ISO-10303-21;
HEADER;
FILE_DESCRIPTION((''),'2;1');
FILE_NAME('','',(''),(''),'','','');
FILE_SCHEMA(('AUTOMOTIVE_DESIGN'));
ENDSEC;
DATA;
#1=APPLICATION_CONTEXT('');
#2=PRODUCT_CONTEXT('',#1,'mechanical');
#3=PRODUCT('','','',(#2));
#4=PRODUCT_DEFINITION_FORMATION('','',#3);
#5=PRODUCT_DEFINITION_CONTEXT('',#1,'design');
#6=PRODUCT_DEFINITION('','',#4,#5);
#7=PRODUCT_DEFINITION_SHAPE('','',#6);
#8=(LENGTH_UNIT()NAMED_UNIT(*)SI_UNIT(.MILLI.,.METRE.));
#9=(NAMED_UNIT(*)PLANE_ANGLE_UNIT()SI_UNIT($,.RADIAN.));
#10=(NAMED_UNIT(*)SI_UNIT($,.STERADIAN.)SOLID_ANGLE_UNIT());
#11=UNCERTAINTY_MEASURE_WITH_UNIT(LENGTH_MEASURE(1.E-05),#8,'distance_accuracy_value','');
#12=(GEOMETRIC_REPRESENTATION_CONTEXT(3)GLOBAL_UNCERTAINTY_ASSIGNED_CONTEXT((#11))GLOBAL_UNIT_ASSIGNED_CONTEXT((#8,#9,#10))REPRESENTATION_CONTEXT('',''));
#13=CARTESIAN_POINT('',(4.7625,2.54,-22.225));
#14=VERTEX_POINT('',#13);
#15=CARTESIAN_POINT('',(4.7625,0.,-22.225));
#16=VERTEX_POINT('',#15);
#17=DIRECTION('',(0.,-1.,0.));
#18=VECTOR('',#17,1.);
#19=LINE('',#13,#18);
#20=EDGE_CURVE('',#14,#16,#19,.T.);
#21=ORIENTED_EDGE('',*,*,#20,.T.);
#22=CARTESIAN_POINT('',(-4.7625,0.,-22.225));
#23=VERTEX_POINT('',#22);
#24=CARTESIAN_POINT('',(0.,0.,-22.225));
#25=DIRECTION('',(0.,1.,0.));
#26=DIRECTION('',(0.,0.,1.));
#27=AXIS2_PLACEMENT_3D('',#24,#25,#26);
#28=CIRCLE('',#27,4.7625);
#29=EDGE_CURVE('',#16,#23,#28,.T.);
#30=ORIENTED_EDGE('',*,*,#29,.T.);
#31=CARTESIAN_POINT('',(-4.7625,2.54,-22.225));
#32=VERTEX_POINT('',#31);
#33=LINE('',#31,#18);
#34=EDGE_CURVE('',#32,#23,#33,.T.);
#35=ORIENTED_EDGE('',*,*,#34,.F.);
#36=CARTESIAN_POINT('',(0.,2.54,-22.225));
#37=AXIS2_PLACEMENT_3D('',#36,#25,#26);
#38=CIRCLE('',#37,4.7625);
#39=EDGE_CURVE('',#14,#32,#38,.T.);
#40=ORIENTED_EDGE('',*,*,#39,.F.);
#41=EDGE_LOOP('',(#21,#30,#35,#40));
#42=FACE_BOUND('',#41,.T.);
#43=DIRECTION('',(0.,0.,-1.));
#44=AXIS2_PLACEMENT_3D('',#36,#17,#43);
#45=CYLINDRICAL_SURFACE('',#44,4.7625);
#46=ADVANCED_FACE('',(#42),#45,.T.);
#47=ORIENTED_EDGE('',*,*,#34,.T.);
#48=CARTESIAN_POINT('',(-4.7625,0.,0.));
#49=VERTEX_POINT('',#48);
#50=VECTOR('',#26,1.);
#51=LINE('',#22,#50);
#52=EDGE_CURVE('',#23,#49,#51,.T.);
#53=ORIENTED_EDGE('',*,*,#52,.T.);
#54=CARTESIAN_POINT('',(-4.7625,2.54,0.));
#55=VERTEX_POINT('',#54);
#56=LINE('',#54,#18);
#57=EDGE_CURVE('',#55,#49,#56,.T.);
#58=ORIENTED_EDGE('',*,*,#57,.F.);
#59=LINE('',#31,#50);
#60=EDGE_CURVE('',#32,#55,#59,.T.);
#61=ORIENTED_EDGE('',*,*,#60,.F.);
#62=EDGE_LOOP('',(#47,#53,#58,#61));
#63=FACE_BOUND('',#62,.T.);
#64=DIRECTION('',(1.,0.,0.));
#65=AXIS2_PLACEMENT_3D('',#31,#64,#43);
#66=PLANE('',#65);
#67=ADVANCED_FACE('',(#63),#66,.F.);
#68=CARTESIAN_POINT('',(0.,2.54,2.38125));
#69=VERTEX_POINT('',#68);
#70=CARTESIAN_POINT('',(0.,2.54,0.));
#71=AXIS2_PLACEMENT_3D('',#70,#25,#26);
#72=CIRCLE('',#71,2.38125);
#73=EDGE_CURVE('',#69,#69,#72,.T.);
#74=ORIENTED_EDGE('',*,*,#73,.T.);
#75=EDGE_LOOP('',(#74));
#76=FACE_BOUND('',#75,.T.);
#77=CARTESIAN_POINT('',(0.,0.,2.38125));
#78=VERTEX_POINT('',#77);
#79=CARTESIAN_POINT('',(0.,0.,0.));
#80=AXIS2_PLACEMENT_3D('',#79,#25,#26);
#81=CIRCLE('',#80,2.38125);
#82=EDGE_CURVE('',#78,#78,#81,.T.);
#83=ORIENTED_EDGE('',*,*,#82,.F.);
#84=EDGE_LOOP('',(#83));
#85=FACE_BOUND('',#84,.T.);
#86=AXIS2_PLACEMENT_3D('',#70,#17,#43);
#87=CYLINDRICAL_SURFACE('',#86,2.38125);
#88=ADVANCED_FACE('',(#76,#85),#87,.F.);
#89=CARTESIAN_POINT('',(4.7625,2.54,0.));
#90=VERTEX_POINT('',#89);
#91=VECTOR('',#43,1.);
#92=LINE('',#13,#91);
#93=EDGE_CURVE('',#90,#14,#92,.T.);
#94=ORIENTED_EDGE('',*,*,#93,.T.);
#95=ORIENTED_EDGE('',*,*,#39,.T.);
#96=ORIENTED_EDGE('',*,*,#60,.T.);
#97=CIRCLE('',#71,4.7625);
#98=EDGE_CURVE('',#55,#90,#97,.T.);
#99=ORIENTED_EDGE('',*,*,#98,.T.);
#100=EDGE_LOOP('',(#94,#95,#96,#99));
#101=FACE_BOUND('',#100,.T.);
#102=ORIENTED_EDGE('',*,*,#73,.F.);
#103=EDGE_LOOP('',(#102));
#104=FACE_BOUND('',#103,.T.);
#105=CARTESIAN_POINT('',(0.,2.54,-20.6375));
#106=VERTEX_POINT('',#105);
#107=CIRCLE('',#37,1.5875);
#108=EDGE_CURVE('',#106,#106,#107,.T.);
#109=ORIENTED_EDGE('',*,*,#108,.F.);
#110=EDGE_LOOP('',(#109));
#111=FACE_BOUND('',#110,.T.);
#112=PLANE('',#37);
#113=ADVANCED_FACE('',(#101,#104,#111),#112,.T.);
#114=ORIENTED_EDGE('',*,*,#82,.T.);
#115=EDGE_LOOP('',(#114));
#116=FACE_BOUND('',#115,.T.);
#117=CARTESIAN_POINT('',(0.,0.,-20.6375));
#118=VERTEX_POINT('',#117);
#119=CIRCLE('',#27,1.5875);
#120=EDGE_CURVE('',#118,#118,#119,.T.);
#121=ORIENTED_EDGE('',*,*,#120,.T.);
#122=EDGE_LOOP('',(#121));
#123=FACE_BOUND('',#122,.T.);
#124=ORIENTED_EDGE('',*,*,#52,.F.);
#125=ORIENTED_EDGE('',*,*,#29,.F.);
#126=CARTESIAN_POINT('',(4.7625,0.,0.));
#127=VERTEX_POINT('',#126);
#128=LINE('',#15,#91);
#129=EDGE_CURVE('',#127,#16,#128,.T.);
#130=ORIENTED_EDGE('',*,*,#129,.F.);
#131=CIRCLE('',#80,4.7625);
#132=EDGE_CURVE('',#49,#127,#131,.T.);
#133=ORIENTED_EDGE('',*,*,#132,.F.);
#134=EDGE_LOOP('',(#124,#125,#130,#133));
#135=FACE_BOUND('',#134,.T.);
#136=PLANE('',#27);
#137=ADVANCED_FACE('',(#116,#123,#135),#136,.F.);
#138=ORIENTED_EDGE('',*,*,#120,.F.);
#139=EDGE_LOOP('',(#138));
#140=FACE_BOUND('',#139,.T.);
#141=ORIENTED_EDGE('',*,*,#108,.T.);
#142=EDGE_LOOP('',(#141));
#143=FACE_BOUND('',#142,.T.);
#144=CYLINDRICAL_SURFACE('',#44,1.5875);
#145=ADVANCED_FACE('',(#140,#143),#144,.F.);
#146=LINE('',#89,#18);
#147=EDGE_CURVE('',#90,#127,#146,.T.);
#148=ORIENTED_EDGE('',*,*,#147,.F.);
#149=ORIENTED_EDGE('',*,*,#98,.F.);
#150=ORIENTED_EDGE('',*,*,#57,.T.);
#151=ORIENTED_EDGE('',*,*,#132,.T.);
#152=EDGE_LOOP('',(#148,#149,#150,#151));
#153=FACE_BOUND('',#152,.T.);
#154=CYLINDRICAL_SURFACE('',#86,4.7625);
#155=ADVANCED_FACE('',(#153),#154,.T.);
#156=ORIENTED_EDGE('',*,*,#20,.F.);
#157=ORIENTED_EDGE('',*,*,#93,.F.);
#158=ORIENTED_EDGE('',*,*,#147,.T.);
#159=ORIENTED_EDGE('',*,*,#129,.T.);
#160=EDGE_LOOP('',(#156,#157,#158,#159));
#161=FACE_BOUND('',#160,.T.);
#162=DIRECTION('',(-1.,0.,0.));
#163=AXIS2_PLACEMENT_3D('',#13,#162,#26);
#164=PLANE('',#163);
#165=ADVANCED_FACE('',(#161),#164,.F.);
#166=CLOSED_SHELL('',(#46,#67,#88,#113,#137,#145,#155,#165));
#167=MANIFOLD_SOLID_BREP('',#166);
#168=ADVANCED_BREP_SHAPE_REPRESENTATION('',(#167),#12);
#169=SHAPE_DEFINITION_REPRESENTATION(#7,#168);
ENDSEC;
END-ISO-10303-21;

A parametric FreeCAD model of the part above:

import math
import FreeCAD as App
import Part
import Sketcher
from FreeCAD import Vector
Q = App.Units.Quantity

doc = App.newDocument("Part")
params = doc.addObject("Spreadsheet::Sheet", "Params")
for row, (alias, value) in enumerate([
    ("sketch1_diameter", "0.1875 in"),
    ("sketch1_diameter2", "0.125 in"),
    ("sketch1_radius", "0.1875 in"),
    ("sketch1_height", "0.875 in"),
    ("pad1_length", "0.1 in"),
], start=1):
    params.set(f"A{row}", alias)
    params.set(f"B{row}", "=" + value)
    params.setAlias(f"B{row}", alias)

body = doc.addObject("PartDesign::Body", "Body")

sketch1 = body.newObject("Sketcher::SketchObject", "Sketch")
sketch1.AttachmentSupport = (doc.getObject("XZ_Plane"), [""])
sketch1.MapMode = "FlatFace"
sketch1.addGeometry([
    Part.LineSegment(Vector(4.8, 0, 0), Vector(4.8, -22.2, 0)),
    Part.ArcOfCircle(Part.Circle(Vector(0, -22.2, 0), Vector(0, 0, 1), 4.8), math.radians(180), math.radians(360)),
    Part.LineSegment(Vector(-4.8, -22.2, 0), Vector(-4.8, 0, 0)),
    Part.ArcOfCircle(Part.Circle(Vector(0, 0, 0), Vector(0, 0, 1), 4.8), math.radians(0), math.radians(180)),
    Part.Circle(Vector(0, 0, 0), Vector(0, 0, 1), 2.4),
    Part.Circle(Vector(0, -22.2, 0), Vector(0, 0, 1), 1.6),
], False)
sketch1.addConstraint([
    Sketcher.Constraint("Tangent", 0, 2, 1, 2),
    Sketcher.Constraint("Tangent", 1, 1, 2, 1),
    Sketcher.Constraint("Tangent", 2, 2, 3, 2),
    Sketcher.Constraint("Tangent", 3, 1, 0, 1),
    Sketcher.Constraint("Vertical", 0),
    Sketcher.Constraint("Vertical", 2),
    Sketcher.Constraint("Coincident", 3, 3, -1, 1),
    Sketcher.Constraint("Coincident", 4, 3, -1, 1),
    Sketcher.Constraint("Coincident", 5, 3, 1, 3),
    Sketcher.Constraint("Diameter", 4, Q("0.1875 in")),
    Sketcher.Constraint("Diameter", 5, Q("0.125 in")),
    Sketcher.Constraint("Radius", 1, Q("0.1875 in")),
    Sketcher.Constraint("DistanceY", 0, 2, 0, 1, Q("0.875 in")),
])
sketch1.setExpression("Constraints[9]", "Params.sketch1_diameter")
sketch1.setExpression("Constraints[10]", "Params.sketch1_diameter2")
sketch1.setExpression("Constraints[11]", "Params.sketch1_radius")
sketch1.setExpression("Constraints[12]", "Params.sketch1_height")
pad1 = body.newObject("PartDesign::Pad", "Pad")
pad1.Profile = sketch1
pad1.setExpression("Length", "Params.pad1_length")
pad1.Reversed = True

doc.recompute()
